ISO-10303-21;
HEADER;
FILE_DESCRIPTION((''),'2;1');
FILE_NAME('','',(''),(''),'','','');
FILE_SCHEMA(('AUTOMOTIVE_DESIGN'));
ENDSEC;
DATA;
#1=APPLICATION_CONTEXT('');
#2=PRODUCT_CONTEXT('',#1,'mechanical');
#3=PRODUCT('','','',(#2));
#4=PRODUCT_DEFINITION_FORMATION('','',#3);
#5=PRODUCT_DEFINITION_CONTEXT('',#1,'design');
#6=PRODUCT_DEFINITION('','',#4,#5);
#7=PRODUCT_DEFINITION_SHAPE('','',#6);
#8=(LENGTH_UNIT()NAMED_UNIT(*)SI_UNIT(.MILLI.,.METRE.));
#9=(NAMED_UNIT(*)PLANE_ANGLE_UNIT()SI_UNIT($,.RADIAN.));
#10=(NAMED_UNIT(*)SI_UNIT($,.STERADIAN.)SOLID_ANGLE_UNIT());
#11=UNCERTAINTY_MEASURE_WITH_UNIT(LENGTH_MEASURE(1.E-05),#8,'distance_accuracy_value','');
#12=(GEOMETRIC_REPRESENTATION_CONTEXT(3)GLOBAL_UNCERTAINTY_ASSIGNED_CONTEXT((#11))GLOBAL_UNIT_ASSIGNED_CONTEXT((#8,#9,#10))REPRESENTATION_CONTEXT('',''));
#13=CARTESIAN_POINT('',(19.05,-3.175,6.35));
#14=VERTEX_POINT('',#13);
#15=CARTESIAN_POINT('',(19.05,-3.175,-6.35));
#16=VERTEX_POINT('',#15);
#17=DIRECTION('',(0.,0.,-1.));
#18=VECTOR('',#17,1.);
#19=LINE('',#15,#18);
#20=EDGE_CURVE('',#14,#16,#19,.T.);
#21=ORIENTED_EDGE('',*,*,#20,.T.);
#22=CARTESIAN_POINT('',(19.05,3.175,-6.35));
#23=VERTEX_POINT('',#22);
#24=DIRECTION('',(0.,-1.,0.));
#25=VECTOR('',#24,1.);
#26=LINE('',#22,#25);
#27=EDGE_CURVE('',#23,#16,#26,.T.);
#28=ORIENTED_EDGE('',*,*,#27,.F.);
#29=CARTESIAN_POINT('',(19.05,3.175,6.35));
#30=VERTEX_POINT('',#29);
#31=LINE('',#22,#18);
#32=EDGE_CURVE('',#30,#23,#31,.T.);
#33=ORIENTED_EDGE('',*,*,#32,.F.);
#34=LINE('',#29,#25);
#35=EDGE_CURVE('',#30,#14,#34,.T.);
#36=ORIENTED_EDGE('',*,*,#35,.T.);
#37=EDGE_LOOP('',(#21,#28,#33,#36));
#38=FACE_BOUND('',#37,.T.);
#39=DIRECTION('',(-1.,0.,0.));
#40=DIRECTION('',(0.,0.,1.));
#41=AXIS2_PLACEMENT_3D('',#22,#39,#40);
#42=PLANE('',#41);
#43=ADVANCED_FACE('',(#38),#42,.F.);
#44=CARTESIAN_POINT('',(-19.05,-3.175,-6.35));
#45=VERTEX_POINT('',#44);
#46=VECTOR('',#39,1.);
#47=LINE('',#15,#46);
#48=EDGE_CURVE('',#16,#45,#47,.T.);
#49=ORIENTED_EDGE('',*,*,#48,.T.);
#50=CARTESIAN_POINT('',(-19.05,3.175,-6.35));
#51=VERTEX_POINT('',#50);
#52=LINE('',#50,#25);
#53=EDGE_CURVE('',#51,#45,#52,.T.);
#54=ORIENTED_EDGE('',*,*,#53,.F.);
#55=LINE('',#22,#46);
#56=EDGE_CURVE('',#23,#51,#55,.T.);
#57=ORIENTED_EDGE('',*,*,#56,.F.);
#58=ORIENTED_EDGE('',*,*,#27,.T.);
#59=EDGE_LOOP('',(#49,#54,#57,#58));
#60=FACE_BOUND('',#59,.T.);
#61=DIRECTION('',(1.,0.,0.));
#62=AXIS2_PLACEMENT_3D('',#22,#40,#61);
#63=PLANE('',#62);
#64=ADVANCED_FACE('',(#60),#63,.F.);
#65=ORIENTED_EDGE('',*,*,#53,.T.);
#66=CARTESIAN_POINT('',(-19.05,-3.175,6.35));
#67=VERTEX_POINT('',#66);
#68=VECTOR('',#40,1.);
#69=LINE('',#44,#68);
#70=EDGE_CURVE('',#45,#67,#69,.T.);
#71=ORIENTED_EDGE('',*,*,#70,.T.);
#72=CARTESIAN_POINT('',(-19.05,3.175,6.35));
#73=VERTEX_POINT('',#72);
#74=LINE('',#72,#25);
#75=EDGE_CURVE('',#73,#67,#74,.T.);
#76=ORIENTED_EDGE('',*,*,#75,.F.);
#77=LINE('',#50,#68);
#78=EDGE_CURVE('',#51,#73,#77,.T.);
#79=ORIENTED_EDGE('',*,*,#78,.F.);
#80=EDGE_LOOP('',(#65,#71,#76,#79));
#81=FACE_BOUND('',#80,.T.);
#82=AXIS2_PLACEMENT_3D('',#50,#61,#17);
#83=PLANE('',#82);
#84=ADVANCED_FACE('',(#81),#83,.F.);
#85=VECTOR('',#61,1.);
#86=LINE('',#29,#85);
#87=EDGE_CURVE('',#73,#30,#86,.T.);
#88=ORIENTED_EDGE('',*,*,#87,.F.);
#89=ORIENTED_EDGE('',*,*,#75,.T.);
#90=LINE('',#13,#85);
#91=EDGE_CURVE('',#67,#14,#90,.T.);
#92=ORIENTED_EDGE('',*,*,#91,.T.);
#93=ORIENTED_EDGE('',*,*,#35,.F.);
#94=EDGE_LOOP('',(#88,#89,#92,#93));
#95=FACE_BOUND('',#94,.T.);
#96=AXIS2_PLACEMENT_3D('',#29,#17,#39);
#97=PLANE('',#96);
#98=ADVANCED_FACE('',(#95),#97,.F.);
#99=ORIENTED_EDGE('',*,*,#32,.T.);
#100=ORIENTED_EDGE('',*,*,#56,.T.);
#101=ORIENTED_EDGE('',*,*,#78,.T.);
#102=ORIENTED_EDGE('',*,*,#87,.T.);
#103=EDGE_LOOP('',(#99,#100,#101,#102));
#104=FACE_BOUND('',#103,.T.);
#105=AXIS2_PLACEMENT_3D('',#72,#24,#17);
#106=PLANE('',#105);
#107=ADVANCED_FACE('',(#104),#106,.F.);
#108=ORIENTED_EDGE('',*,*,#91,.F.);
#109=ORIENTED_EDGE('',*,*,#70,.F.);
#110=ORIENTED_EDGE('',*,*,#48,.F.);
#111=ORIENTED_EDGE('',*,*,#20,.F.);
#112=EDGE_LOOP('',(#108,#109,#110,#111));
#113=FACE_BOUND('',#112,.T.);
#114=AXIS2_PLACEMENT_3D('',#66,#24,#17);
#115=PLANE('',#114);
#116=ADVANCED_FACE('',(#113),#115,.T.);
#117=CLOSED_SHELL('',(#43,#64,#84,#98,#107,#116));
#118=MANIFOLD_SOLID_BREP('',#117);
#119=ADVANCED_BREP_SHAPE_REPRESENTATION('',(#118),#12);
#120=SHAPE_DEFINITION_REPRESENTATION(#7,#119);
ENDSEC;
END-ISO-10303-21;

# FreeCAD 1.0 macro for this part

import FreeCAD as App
import Part
import Sketcher
Q = App.Units.Quantity

doc = App.newDocument("Part")
body = doc.addObject("PartDesign::Body", "Body")

# Sketch on XZ plane
sketch1 = body.newObject("Sketcher::SketchObject", "Sketch")
sketch1.AttachmentSupport = (doc.getObject("XZ_Plane"), [""])
sketch1.MapMode = "FlatFace"
sketch1.addGeometry([
    Part.LineSegment(App.Vector(-19, -6, 0), App.Vector(-19, 6, 0)),
    Part.LineSegment(App.Vector(-19, 6, 0), App.Vector(19, 6, 0)),
    Part.LineSegment(App.Vector(19, 6, 0), App.Vector(19, -6, 0)),
    Part.LineSegment(App.Vector(19, -6, 0), App.Vector(-19, -6, 0)),
], False)
sketch1.addConstraint([
    Sketcher.Constraint("Coincident", 0, 2, 1, 1),
    Sketcher.Constraint("Coincident", 1, 2, 2, 1),
    Sketcher.Constraint("Coincident", 2, 2, 3, 1),
    Sketcher.Constraint("Coincident", 3, 2, 0, 1),
    Sketcher.Constraint("Vertical", 0),
    Sketcher.Constraint("Horizontal", 1),
    Sketcher.Constraint("Vertical", 2),
    Sketcher.Constraint("Horizontal", 3),
    Sketcher.Constraint("Symmetric", 0, 2, 2, 2, -1, 1),
    Sketcher.Constraint("DistanceX", 1, 1, 1, 2, Q("1.5 in")),
    Sketcher.Constraint("DistanceY", 0, 1, 0, 2, Q("0.5 in")),
])
pad1 = body.newObject("PartDesign::Pad", "Pad")
pad1.Profile = sketch1
pad1.Length = Q("0.25 in")
pad1.Midplane = True

doc.recompute()
